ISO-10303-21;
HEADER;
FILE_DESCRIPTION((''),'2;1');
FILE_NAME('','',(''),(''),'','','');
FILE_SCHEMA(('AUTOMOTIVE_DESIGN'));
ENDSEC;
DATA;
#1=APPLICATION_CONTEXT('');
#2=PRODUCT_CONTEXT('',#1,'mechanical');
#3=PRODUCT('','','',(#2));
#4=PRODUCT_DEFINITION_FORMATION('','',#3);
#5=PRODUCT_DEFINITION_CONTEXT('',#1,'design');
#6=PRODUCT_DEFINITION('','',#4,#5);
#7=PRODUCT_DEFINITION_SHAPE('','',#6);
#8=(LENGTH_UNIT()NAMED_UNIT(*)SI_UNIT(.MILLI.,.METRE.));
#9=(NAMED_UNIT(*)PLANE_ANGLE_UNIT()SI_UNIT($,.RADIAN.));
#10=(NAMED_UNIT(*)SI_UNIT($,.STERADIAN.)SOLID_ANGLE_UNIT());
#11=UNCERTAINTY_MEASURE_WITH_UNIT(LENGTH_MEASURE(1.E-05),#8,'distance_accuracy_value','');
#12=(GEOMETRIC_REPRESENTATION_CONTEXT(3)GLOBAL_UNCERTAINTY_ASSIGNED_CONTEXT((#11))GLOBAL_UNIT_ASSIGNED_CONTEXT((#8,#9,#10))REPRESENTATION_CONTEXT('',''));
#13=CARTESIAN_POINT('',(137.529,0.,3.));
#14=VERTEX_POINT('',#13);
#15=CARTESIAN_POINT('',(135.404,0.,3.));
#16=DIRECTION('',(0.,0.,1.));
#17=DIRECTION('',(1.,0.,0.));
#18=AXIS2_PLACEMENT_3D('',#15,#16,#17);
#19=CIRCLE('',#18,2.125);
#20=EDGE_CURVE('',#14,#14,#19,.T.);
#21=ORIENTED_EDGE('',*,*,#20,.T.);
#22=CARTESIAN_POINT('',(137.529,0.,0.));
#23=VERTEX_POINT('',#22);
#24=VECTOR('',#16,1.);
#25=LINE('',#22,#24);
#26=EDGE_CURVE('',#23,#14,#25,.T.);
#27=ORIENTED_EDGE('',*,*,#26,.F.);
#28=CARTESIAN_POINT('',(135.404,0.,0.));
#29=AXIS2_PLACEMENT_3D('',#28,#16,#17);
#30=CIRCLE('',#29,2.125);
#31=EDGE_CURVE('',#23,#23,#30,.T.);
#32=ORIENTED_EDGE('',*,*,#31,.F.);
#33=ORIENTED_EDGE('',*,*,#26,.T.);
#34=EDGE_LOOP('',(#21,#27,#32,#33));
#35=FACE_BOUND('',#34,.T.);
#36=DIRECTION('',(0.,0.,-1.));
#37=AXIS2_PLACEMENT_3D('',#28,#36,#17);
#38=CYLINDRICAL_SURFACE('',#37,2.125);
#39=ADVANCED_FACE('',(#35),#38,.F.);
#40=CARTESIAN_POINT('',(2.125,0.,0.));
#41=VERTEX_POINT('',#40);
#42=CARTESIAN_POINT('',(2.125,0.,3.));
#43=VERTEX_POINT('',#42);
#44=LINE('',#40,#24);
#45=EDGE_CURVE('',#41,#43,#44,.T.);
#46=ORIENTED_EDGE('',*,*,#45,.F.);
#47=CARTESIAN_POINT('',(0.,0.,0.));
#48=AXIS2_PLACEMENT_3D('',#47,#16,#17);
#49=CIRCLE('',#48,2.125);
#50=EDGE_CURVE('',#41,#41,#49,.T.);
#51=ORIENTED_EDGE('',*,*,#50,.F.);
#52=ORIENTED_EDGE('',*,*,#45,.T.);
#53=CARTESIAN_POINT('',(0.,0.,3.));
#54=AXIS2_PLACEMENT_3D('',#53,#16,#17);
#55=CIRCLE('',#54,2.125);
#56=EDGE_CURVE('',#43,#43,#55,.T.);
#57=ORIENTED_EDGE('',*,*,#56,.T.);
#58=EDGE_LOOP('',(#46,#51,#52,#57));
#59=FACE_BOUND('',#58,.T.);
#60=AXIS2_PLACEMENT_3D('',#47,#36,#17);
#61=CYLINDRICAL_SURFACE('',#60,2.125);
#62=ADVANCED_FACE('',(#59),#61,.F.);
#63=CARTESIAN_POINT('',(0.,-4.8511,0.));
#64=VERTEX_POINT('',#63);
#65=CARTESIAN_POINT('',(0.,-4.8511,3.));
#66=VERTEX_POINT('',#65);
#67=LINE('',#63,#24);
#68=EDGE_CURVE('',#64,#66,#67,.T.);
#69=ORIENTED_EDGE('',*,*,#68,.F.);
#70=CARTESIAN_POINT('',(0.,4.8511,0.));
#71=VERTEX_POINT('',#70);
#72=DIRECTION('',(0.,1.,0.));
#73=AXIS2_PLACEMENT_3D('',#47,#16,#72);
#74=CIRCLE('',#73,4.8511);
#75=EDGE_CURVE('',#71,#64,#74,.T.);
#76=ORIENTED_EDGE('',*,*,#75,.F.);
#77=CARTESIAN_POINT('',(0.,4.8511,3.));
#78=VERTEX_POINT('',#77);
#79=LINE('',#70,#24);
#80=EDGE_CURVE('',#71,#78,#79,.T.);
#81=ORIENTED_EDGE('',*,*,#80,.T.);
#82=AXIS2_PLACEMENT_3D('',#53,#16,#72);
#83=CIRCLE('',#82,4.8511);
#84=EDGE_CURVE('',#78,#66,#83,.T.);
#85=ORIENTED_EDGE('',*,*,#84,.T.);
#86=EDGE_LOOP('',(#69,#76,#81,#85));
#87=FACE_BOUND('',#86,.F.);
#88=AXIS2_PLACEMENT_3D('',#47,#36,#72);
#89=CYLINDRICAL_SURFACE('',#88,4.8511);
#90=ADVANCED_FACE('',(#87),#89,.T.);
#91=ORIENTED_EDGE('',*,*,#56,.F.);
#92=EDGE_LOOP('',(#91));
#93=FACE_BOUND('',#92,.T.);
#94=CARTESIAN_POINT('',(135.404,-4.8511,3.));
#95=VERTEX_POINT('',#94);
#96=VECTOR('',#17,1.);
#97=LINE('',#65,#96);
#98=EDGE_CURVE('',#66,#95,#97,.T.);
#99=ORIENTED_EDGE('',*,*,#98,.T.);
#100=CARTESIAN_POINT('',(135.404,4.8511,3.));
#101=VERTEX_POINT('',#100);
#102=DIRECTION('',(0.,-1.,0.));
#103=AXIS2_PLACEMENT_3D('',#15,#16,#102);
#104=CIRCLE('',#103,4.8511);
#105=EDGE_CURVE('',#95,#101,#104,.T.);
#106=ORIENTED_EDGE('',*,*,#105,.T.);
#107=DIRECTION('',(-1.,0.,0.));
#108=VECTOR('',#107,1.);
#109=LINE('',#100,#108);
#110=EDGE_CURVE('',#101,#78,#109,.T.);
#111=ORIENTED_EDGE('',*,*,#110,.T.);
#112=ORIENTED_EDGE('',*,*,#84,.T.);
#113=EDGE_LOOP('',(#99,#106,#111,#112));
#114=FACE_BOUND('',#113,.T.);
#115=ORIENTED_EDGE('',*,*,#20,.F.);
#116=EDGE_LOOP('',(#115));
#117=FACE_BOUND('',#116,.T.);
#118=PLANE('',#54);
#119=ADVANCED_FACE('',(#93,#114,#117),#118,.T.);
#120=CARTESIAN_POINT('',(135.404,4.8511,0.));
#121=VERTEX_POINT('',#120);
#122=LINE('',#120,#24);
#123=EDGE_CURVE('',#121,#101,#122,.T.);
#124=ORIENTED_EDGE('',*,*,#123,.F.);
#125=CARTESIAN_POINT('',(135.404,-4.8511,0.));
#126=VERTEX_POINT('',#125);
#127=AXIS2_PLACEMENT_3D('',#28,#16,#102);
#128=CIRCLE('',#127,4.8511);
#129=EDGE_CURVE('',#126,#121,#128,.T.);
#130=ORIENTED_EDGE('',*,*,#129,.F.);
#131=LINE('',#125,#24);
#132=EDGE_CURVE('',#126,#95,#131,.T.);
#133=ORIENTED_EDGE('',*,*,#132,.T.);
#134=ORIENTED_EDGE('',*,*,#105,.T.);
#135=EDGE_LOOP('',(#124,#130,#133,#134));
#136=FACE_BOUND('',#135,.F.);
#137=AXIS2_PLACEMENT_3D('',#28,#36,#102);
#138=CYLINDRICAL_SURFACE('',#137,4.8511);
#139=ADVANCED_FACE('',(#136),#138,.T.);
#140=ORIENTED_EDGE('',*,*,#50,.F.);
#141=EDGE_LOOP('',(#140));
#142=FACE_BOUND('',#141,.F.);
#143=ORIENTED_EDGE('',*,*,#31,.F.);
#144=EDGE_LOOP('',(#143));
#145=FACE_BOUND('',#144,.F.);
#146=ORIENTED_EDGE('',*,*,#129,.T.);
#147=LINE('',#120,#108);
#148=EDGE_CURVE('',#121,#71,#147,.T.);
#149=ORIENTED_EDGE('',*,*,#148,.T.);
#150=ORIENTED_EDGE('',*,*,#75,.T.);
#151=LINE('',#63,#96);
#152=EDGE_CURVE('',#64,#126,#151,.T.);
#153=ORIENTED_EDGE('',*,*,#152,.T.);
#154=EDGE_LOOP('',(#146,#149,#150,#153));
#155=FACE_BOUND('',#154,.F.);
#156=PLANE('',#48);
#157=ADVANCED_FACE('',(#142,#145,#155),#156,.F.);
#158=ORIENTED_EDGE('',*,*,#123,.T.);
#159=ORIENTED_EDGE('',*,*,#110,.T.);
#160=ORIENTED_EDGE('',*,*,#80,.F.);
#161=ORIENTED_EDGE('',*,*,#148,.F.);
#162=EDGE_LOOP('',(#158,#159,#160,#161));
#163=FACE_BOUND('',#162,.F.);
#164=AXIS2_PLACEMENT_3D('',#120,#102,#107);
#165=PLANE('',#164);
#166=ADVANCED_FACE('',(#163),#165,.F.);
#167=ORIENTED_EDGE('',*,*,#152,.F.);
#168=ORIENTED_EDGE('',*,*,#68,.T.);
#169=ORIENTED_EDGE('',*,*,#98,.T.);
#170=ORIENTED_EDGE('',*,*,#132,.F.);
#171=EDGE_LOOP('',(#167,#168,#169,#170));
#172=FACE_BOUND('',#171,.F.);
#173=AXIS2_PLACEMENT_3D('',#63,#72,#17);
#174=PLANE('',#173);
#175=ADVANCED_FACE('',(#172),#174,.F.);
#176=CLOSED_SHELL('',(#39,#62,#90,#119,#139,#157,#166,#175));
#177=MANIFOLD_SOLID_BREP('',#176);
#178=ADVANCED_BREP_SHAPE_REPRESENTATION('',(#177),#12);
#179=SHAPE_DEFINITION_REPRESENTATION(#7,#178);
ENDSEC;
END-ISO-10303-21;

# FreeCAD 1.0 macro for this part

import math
import FreeCAD as App
import Part
import Sketcher
Q = App.Units.Quantity

doc = App.newDocument("Part")
body = doc.addObject("PartDesign::Body", "Body")

# Sketch on XY plane
sketch1 = body.newObject("Sketcher::SketchObject", "Sketch")
sketch1.AttachmentSupport = (doc.getObject("XY_Plane"), [""])
sketch1.MapMode = "FlatFace"
sketch1.addGeometry([
    Part.ArcOfCircle(Part.Circle(App.Vector(0, 0, 0), App.Vector(0, 0, 1), 4.9), math.radians(90), math.radians(270)),  # 0
    Part.LineSegment(App.Vector(0, -4.9, 0), App.Vector(135.4, -4.9, 0)),  # 1
    Part.ArcOfCircle(Part.Circle(App.Vector(135.4, 0, 0), App.Vector(0, 0, 1), 4.9), math.radians(-90), math.radians(90)),  # 2
    Part.LineSegment(App.Vector(135.4, 4.9, 0), App.Vector(0, 4.9, 0)),  # 3
    Part.Circle(App.Vector(0, 0, 0), App.Vector(0, 0, 1), 2.1),  # 4
    Part.Circle(App.Vector(135.4, 0, 0), App.Vector(0, 0, 1), 2.1),  # 5
], False)
sketch1.addConstraint([
    Sketcher.Constraint("Tangent", 0, 2, 1, 1),
    Sketcher.Constraint("Tangent", 1, 2, 2, 1),
    Sketcher.Constraint("Tangent", 2, 2, 3, 1),
    Sketcher.Constraint("Tangent", 3, 2, 0, 1),
    Sketcher.Constraint("Horizontal", 1),
    Sketcher.Constraint("Horizontal", 3),
    Sketcher.Constraint("Coincident", 0, 3, -1, 1),
    Sketcher.Constraint("Coincident", 4, 3, -1, 1),
    Sketcher.Constraint("Coincident", 5, 3, 2, 3),
    Sketcher.Constraint("Equal", 4, 5),
    Sketcher.Constraint("Diameter", 4, Q("4.25 mm")),
    Sketcher.Constraint("DistanceX", 1, 1, 1, 2, Q("135.404 mm")),
    Sketcher.Constraint("Radius", 0, Q("4.851 mm")),
])
pad1 = body.newObject("PartDesign::Pad", "Pad")
pad1.Profile = sketch1
pad1.Length = 3

doc.recompute()
